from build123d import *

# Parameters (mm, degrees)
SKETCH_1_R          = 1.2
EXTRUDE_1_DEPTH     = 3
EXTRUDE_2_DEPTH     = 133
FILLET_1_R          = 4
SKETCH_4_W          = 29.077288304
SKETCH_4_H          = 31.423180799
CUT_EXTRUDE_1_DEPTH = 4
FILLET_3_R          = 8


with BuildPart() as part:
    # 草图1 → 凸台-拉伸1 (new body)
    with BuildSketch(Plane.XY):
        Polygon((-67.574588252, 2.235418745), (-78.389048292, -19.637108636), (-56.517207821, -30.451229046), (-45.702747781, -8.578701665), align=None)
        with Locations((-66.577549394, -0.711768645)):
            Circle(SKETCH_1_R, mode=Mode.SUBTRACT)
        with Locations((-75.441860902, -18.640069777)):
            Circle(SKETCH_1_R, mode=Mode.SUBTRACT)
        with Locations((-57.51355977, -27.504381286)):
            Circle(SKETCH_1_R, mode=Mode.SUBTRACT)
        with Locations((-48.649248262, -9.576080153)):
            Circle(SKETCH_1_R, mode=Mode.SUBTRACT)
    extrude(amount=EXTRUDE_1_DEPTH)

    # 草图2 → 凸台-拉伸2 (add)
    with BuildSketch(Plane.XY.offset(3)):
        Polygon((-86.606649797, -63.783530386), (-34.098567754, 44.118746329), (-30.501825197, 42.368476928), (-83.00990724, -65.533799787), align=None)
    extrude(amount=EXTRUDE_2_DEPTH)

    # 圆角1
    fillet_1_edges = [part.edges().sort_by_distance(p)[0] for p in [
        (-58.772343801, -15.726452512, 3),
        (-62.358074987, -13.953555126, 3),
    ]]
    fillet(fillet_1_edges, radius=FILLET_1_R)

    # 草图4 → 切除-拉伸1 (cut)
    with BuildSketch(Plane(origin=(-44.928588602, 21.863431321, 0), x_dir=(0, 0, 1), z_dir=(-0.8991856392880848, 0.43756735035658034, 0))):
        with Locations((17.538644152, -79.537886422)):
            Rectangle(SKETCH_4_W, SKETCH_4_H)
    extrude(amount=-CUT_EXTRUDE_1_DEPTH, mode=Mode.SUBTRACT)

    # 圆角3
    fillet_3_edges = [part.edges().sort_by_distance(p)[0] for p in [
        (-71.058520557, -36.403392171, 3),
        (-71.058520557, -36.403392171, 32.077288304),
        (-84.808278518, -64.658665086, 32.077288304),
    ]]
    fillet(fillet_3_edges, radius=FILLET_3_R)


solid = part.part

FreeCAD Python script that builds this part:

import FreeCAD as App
import Part
import Sketcher

V = App.Vector


def edges_at(feature, points):
    """Names of the edges that pass closest to the given points."""
    edges = feature.Shape.Edges
    near = lambda p: min(range(len(edges)), key=lambda i: edges[i].distToShape(Part.Vertex(*p))[0])
    return sorted({f"Edge{near(p) + 1}" for p in points})


def add_polygon(sketch, points):
    """Adds a closed chain of lines whose ends are joined by coincident constraints."""
    first, n = sketch.GeometryCount, len(points)
    for a, b in zip(points, points[1:] + points[:1]):
        sketch.addGeometry(Part.LineSegment(App.Vector(*a, 0), App.Vector(*b, 0)), False)
    for i in range(n):
        sketch.addConstraint(Sketcher.Constraint("Coincident", first + i, 2, first + (i + 1) % n, 1))

doc = App.newDocument("Part")
body = doc.addObject("PartDesign::Body", "Body")

# Sketch on XY plane
sketch1 = body.newObject("Sketcher::SketchObject", "Sketch")
sketch1.AttachmentSupport = (doc.getObject("XY_Plane"), [""])
sketch1.MapMode = "FlatFace"
add_polygon(sketch1, [(-67.6, 2.2), (-78.4, -19.6), (-56.5, -30.5), (-45.7, -8.6)])  # lines 0-3
sketch1.addGeometry(Part.Circle(V(-75.4, -18.6, 0), V(0, 0, 1), 1.2), False)  # 4
sketch1.addGeometry(Part.Circle(V(-57.5, -27.5, 0), V(0, 0, 1), 1.2), False)  # 5
sketch1.addGeometry(Part.Circle(V(-66.6, -0.7, 0), V(0, 0, 1), 1.2), False)  # 6
sketch1.addGeometry(Part.Circle(V(-48.6, -9.6, 0), V(0, 0, 1), 1.2), False)  # 7
sketch1.addConstraint([
    Sketcher.Constraint("Equal", 4, 5),
    Sketcher.Constraint("Equal", 5, 6),
    Sketcher.Constraint("Equal", 6, 7),
    Sketcher.Constraint("Perpendicular", 0, 1),
    Sketcher.Constraint("Perpendicular", 1, 2),
    Sketcher.Constraint("Perpendicular", 2, 3),
    Sketcher.Constraint("Diameter", 4, 2.4),
    Sketcher.Constraint("Distance", 0, 24.4),
    Sketcher.Constraint("DistanceY", 2, 2, -1, 1, 8.578702),
    Sketcher.Constraint("DistanceX", 4, 3, 5, 3, 17.928301),
    Sketcher.Constraint("DistanceY", 4, 3, 6, 3, 17.928301),
    Sketcher.Constraint("DistanceX", 6, 3, 7, 3, 17.928301),
    Sketcher.Constraint("DistanceY", 5, 3, 7, 3, 17.928301),
    Sketcher.Constraint("DistanceX", 0, 2, 6, 3, 11.811499),
    Sketcher.Constraint("DistanceX", 7, 3, 2, 2, 2.9465),
    Sketcher.Constraint("DistanceY", 7, 3, 3, 2, 11.811499),
    Sketcher.Constraint("DistanceX", 4, 3, -1, 1, 75.441861),
    Sketcher.Constraint("DistanceY", 4, 3, -1, 1, 18.64007),
    Sketcher.Constraint("DistanceY", 5, 3, -1, 1, 27.504381),
    Sketcher.Constraint("DistanceX", 6, 3, -1, 1, 66.577549),
])
pad1 = body.newObject("PartDesign::Pad", "Pad")
pad1.Profile = sketch1
pad1.Length = 3

# Sketch on XY plane
sketch2 = body.newObject("Sketcher::SketchObject", "Sketch001")
sketch2.AttachmentSupport = (doc.getObject("XY_Plane"), [""])
sketch2.MapMode = "FlatFace"
sketch2.AttachmentOffset = App.Placement(V(0, 0, 3), App.Rotation())
add_polygon(sketch2, [(-34.1, 44.1), (-86.6, -63.8), (-83, -65.5), (-30.5, 42.4)])  # lines 0-3
sketch2.addConstraint([
    Sketcher.Constraint("Perpendicular", 0, 1),
    Sketcher.Constraint("Perpendicular", 1, 2),
    Sketcher.Constraint("Perpendicular", 2, 3),
    Sketcher.Constraint("Distance", 0, 120.0),
    Sketcher.Constraint("Distance", 1, 4.0),
    Sketcher.Constraint("DistanceY", 1, 2, -1, 1, 65.5338),
    Sketcher.Constraint("DistanceX", 0, 2, -1, 1, 86.60665),
    Sketcher.Constraint("DistanceY", 0, 2, -1, 1, 63.78353),
])
pad2 = body.newObject("PartDesign::Pad", "Pad001")
pad2.Profile = sketch2
pad2.Length = 133
doc.recompute()

fillet = body.newObject("PartDesign::Fillet", "Fillet")
fillet.Base = (pad2, edges_at(pad2, [(-58.772, -15.726, 3), (-62.358, -13.954, 3)]))
fillet.Radius = 4

# Sketch on an angled plane
sketch3 = body.newObject("Sketcher::SketchObject", "Sketch002")
sketch3.Placement = App.Placement(V(-44.928589, 21.863431, 0), App.Rotation(V(0, 0, 1), V(0.43756735, 0.899185639, 0), V(-0.899185639, 0.43756735, 0), "ZXY"))
add_polygon(sketch3, [(3, -64), (3, -95), (32, -95), (32, -64)])  # lines 0-3
sketch3.addConstraint([
    Sketcher.Constraint("Vertical", 0),
    Sketcher.Constraint("Horizontal", 1),
    Sketcher.Constraint("Vertical", 2),
    Sketcher.Constraint("Horizontal", 3),
    Sketcher.Constraint("DistanceX", -1, 1, 0, 2, 3.0),
    Sketcher.Constraint("DistanceX", 1, 1, 1, 2, 29.077288),
    Sketcher.Constraint("DistanceY", 0, 2, 0, 1, 31.423181),
    Sketcher.Constraint("DistanceY", 0, 2, -1, 1, 95.249477),
])
pocket1 = body.newObject("PartDesign::Pocket", "Pocket")
pocket1.Profile = sketch3
pocket1.Length = 4
doc.recompute()

fillet2 = body.newObject("PartDesign::Fillet", "Fillet001")
fillet2.Base = (pocket1, edges_at(pocket1, [(-71.059, -36.403, 3), (-71.059, -36.403, 32.077), (-84.808, -64.659, 32.077)]))
fillet2.Radius = 8

doc.recompute()
